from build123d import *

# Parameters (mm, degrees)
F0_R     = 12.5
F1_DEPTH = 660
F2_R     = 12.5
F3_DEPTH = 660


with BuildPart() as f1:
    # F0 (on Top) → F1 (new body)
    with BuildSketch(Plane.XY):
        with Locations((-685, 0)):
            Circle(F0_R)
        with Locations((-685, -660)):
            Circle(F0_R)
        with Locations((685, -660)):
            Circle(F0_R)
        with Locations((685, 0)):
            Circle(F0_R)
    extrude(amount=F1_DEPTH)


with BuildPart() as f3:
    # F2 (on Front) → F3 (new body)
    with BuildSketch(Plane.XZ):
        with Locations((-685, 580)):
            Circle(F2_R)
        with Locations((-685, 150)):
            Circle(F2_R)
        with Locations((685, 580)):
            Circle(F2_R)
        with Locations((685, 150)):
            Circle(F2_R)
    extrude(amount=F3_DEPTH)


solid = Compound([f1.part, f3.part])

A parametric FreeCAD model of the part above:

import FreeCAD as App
import Part
import Sketcher

V = App.Vector

doc = App.newDocument("Part")
body = doc.addObject("PartDesign::Body", "Body")
body.AllowCompound = True

# Sketch on XY plane
sketch1 = body.newObject("Sketcher::SketchObject", "Sketch")
sketch1.AttachmentSupport = (doc.getObject("XY_Plane"), [""])
sketch1.MapMode = "FlatFace"
sketch1.addGeometry([
    Part.Circle(V(-685, 0, 0), V(0, 0, 1), 12),
    Part.Circle(V(-685, -660, 0), V(0, 0, 1), 12),
    Part.Circle(V(685, -660, 0), V(0, 0, 1), 12),
    Part.Circle(V(685, 0, 0), V(0, 0, 1), 12),
], False)
sketch1.addConstraint([
    Sketcher.Constraint("Equal", 0, 1),
    Sketcher.Constraint("Equal", 1, 2),
    Sketcher.Constraint("Equal", 2, 3),
    Sketcher.Constraint("Symmetric", 0, 3, 3, 3, -1, 1),
    Sketcher.Constraint("Symmetric", 1, 3, 2, 3, -2),
    Sketcher.Constraint("PointOnObject", 0, 3, -1),
    Sketcher.Constraint("Vertical", 0, 3, 1, 3),
    Sketcher.Constraint("Diameter", 0, 25.0),
    Sketcher.Constraint("DistanceX", 0, 3, -1, 1, 685.0),
    Sketcher.Constraint("DistanceY", 1, 3, -1, 1, 660.0),
])
pad1 = body.newObject("PartDesign::Pad", "Pad")
pad1.Profile = sketch1
pad1.Length = 660
body2 = doc.addObject("PartDesign::Body", "Body001")
body2.AllowCompound = True

# Sketch on XZ plane
sketch2 = body2.newObject("Sketcher::SketchObject", "Sketch001")
sketch2.AttachmentSupport = (doc.getObject("XZ_Plane001"), [""])
sketch2.MapMode = "FlatFace"
sketch2.addGeometry([
    Part.Circle(V(-685, 580, 0), V(0, 0, 1), 12),
    Part.Circle(V(-685, 150, 0), V(0, 0, 1), 12),
    Part.Circle(V(685, 580, 0), V(0, 0, 1), 12),
    Part.Circle(V(685, 150, 0), V(0, 0, 1), 12),
], False)
sketch2.addConstraint([
    Sketcher.Constraint("Equal", 0, 1),
    Sketcher.Constraint("Equal", 1, 2),
    Sketcher.Constraint("Equal", 2, 3),
    Sketcher.Constraint("Symmetric", 0, 3, 2, 3, -2),
    Sketcher.Constraint("Symmetric", 1, 3, 3, 3, -2),
    Sketcher.Constraint("Vertical", 0, 3, 1, 3),
    Sketcher.Constraint("Diameter", 0, 25.0),
    Sketcher.Constraint("DistanceX", 0, 3, -1, 1, 685.0),
    Sketcher.Constraint("DistanceY", -1, 1, 0, 3, 580.0),
    Sketcher.Constraint("DistanceY", -1, 1, 1, 3, 150.0),
])
pad2 = body2.newObject("PartDesign::Pad", "Pad001")
pad2.Profile = sketch2
pad2.Length = 660

doc.recompute()
